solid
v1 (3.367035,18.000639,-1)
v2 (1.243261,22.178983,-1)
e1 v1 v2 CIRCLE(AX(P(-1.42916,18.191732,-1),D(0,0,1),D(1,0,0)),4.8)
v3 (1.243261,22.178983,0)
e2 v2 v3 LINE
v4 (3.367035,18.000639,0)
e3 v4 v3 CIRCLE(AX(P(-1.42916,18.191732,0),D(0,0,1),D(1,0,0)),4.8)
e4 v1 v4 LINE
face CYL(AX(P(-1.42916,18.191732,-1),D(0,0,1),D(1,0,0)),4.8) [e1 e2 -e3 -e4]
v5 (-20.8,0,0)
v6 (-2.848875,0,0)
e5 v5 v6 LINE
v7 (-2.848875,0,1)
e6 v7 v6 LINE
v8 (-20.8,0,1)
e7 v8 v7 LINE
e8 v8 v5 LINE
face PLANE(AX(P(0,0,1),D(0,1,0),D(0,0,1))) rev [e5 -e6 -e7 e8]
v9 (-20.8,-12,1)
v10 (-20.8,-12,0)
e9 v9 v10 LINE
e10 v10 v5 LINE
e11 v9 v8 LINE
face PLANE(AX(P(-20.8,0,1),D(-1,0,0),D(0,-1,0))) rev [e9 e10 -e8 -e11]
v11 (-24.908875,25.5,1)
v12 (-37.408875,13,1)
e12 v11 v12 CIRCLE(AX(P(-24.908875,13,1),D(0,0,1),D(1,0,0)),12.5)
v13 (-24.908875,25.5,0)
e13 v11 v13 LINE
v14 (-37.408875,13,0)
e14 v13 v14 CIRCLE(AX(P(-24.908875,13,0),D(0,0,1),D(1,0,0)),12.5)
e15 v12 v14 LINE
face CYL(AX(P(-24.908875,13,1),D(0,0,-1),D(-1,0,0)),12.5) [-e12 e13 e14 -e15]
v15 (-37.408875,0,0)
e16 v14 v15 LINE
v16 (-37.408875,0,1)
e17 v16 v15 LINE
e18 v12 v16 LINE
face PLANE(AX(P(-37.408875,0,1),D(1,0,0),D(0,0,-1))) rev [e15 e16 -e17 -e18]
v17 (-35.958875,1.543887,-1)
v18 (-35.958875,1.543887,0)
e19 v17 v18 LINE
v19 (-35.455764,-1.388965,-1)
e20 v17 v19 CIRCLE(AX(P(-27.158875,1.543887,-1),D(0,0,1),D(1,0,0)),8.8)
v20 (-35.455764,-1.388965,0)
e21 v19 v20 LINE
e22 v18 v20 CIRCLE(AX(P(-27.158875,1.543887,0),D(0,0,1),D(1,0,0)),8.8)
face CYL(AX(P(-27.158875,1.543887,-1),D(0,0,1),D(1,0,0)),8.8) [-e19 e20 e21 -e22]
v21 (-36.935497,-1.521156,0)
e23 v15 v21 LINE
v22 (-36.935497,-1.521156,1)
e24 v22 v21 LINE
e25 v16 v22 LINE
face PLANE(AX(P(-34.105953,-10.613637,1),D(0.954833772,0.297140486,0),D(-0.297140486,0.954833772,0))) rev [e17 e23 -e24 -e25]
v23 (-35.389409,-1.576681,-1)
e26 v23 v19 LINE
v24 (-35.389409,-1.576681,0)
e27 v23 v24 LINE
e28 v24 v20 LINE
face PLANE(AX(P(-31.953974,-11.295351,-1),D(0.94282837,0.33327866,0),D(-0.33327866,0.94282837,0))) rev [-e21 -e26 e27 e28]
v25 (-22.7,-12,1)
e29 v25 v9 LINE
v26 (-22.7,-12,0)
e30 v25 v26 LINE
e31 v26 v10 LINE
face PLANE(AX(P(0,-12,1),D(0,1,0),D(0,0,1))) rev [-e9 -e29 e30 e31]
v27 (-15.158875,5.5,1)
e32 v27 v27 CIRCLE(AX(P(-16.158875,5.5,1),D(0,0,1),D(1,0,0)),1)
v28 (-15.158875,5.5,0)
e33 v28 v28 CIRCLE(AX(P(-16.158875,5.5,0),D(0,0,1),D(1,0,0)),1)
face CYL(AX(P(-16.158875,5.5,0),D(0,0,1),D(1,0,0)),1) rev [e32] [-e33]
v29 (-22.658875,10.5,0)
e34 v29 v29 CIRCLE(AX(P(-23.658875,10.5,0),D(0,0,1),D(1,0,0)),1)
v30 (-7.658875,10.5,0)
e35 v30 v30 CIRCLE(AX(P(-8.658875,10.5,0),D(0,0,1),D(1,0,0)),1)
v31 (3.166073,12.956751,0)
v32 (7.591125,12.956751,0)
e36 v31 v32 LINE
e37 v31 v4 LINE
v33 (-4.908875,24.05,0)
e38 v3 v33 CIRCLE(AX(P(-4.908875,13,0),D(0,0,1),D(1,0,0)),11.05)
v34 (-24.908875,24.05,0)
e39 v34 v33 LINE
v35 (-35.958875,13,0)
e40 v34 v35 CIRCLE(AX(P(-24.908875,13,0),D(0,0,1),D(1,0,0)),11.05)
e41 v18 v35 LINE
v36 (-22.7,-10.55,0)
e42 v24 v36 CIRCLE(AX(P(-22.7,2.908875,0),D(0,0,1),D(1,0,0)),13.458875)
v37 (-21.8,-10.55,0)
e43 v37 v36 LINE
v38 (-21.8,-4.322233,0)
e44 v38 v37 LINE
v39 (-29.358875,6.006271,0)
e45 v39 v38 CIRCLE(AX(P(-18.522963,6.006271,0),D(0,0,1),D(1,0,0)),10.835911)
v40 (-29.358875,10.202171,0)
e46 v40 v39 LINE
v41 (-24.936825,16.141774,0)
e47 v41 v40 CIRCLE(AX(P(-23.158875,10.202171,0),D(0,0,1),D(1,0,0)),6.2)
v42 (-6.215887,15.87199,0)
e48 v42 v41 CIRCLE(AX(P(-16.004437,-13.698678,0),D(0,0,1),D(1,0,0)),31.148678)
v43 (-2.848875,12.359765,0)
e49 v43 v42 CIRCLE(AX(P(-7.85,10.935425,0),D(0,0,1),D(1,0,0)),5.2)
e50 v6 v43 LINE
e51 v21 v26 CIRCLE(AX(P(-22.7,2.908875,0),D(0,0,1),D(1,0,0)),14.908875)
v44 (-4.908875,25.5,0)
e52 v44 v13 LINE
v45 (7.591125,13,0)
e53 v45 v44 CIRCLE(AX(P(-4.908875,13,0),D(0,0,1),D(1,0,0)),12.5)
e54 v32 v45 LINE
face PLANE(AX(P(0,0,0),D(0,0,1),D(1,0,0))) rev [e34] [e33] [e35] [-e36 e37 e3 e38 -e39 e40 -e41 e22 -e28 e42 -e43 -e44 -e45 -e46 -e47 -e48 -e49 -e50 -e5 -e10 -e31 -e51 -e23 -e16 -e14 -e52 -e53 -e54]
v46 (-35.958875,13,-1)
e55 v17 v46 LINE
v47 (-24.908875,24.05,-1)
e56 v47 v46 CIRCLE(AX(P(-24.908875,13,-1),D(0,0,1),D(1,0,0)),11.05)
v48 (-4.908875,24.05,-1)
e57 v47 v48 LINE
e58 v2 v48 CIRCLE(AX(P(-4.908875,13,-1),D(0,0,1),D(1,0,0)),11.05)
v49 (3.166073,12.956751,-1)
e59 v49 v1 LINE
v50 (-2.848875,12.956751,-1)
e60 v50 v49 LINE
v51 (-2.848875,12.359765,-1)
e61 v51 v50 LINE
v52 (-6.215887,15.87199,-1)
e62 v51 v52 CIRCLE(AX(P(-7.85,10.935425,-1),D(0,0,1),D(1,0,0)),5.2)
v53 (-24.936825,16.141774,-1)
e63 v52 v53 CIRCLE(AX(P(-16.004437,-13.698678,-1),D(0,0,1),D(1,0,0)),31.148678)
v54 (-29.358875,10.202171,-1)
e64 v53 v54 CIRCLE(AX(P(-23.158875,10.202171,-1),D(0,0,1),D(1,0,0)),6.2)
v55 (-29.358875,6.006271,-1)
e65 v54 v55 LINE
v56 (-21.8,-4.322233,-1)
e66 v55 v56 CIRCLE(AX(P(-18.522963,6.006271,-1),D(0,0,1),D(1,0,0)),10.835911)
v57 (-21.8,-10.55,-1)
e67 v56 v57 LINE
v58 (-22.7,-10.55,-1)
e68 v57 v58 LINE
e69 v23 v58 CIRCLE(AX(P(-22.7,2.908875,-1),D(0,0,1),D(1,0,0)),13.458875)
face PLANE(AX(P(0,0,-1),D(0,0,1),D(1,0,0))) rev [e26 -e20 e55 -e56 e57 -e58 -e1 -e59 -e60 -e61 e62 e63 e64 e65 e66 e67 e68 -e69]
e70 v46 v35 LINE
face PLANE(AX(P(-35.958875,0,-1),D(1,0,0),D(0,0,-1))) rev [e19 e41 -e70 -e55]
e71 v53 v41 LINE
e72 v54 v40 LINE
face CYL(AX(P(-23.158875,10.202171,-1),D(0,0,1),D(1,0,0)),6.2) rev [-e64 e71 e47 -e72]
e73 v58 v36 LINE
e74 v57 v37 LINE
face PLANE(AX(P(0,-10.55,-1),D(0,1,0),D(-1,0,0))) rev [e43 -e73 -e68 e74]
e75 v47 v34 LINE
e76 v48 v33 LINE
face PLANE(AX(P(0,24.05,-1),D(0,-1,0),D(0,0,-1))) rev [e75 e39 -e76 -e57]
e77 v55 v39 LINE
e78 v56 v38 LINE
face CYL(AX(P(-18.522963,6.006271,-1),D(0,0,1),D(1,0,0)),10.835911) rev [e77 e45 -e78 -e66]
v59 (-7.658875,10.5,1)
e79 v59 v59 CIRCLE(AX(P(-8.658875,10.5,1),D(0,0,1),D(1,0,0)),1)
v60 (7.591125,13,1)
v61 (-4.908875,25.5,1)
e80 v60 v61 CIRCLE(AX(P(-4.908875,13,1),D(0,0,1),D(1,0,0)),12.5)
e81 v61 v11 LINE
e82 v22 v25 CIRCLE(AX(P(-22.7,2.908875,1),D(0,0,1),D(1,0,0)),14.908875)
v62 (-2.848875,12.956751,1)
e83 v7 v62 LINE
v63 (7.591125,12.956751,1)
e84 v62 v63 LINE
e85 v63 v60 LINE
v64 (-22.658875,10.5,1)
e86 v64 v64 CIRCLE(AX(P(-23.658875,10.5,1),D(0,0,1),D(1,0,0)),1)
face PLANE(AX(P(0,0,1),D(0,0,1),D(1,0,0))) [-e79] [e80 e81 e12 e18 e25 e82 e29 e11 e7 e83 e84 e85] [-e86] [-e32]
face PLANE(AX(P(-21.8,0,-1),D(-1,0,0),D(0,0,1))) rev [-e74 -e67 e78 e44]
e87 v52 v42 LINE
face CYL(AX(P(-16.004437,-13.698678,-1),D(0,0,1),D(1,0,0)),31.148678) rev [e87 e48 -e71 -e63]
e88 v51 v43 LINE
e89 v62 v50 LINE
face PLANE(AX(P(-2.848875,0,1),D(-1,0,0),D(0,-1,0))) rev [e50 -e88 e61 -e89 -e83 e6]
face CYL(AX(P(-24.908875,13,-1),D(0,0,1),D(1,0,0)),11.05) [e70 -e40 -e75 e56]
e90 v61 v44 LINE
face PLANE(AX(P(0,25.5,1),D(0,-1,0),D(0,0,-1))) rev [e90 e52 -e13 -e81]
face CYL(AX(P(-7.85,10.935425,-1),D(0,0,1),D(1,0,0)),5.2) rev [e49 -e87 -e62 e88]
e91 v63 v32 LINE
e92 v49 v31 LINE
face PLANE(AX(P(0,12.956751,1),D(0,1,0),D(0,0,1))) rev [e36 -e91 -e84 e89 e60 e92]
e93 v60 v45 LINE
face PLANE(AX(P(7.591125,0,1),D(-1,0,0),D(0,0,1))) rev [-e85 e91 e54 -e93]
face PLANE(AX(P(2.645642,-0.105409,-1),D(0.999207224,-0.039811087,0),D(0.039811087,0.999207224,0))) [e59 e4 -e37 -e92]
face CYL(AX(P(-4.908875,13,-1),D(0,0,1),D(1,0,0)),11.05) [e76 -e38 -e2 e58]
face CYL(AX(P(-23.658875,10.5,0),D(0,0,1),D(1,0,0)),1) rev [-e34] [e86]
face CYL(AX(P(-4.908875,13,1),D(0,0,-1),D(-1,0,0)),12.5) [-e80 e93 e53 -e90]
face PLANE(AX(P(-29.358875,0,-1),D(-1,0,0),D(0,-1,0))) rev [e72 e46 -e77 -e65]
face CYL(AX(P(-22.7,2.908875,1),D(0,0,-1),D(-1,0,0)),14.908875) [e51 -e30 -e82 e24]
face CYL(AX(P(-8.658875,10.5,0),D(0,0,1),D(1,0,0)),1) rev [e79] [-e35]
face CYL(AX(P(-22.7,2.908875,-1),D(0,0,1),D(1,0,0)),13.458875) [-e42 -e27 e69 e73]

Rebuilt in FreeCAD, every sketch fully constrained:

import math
import FreeCAD as App
import Part
import Sketcher

V = App.Vector

doc = App.newDocument("Part")
body = doc.addObject("PartDesign::Body", "Body")

# Sketch on XY plane
sketch1 = body.newObject("Sketcher::SketchObject", "Sketch")
sketch1.AttachmentSupport = (doc.getObject("XY_Plane"), [""])
sketch1.MapMode = "FlatFace"
sketch1.addGeometry(Part.LineSegment(V(-37.408875, 0, 0), V(-36.935497, -1.521156, 0)), False)
sketch1.addGeometry(Part.ArcOfCircle(Part.Circle(V(-22.7, 2.908875, 0), V(0, 0, 1), 14.908875), math.radians(-162.714065), math.radians(-90)), False)
sketch1.addGeometry(Part.LineSegment(V(-22.7, -12, 0), V(-20.8, -12, 0)), False)
sketch1.addGeometry(Part.LineSegment(V(-20.8, -12, 0), V(-20.8, 0, 0)), False)
sketch1.addGeometry(Part.LineSegment(V(-20.8, 0, 0), V(-2.848875, 0, 0)), False)
sketch1.addGeometry(Part.LineSegment(V(-2.848875, 0, 0), V(-2.848875, 12.956751, 0)), False)
sketch1.addGeometry(Part.LineSegment(V(-2.848875, 12.956751, 0), V(7.591125, 12.956751, 0)), False)
sketch1.addGeometry(Part.LineSegment(V(7.591125, 12.956751, 0), V(7.591125, 13, 0)), False)
sketch1.addGeometry(Part.ArcOfCircle(Part.Circle(V(-4.908875, 13, 0), V(0, 0, 1), 12.5), math.radians(0), math.radians(90)), False)
sketch1.addGeometry(Part.LineSegment(V(-4.908875, 25.5, 0), V(-24.908875, 25.5, 0)), False)
sketch1.addGeometry(Part.ArcOfCircle(Part.Circle(V(-24.908875, 13, 0), V(0, 0, 1), 12.5), math.radians(90), math.radians(180)), False)
sketch1.addGeometry(Part.LineSegment(V(-37.408875, 13, 0), V(-37.408875, 0, 0)), False)
sketch1.addConstraint(Sketcher.Constraint("Tangent", 0, 2, 1, 1))
sketch1.addConstraint(Sketcher.Constraint("Tangent", 1, 2, 2, 1))
sketch1.addConstraint(Sketcher.Constraint("Coincident", 2, 2, 3, 1))
sketch1.addConstraint(Sketcher.Constraint("Coincident", 3, 2, 4, 1))
sketch1.addConstraint(Sketcher.Constraint("Coincident", 4, 2, 5, 1))
sketch1.addConstraint(Sketcher.Constraint("Coincident", 5, 2, 6, 1))
sketch1.addConstraint(Sketcher.Constraint("Coincident", 6, 2, 7, 1))
sketch1.addConstraint(Sketcher.Constraint("Tangent", 7, 2, 8, 1))
sketch1.addConstraint(Sketcher.Constraint("Tangent", 8, 2, 9, 1))
sketch1.addConstraint(Sketcher.Constraint("Tangent", 9, 2, 10, 1))
sketch1.addConstraint(Sketcher.Constraint("Tangent", 10, 2, 11, 1))
sketch1.addConstraint(Sketcher.Constraint("Coincident", 11, 2, 0, 1))
sketch1.addConstraint(Sketcher.Constraint("Horizontal", 2))
sketch1.addConstraint(Sketcher.Constraint("Vertical", 3))
sketch1.addConstraint(Sketcher.Constraint("Horizontal", 4))
sketch1.addConstraint(Sketcher.Constraint("Vertical", 5))
sketch1.addConstraint(Sketcher.Constraint("Horizontal", 6))
sketch1.addConstraint(Sketcher.Constraint("Vertical", 7))
sketch1.addConstraint(Sketcher.Constraint("Horizontal", 9))
sketch1.addConstraint(Sketcher.Constraint("Vertical", 11))
sketch1.addConstraint(Sketcher.Constraint("Equal", 8, 10))
sketch1.addConstraint(Sketcher.Constraint("PointOnObject", 3, 2, -1))
sketch1.addConstraint(Sketcher.Constraint("PointOnObject", 11, 2, -1))
sketch1.addConstraint(Sketcher.Constraint("Radius", 8, 12.5))
sketch1.addConstraint(Sketcher.Constraint("DistanceX", 9, 2, 9, 1, 20.0))
sketch1.addConstraint(Sketcher.Constraint("DistanceY", 3, 1, 3, 2, 12.0))
sketch1.addConstraint(Sketcher.Constraint("DistanceY", 11, 2, 11, 1, 13.0))
sketch1.addConstraint(Sketcher.Constraint("DistanceX", 2, 1, 2, 2, 1.9))
sketch1.addConstraint(Sketcher.Constraint("DistanceX", 6, 1, 6, 2, 10.44))
sketch1.addConstraint(Sketcher.Constraint("DistanceX", 1, 3, -1, 1, 22.7))
sketch1.addConstraint(Sketcher.Constraint("Radius", 1, 14.908875))
sketch1.addConstraint(Sketcher.Constraint("DistanceY", 5, 1, 5, 2, 12.956751))
sketch1.addConstraint(Sketcher.Constraint("Distance", 0, 1.593111))
pad1 = body.newObject("PartDesign::Pad", "Pad")
pad1.Profile = sketch1
pad1.Length = 1

# Sketch on XY plane
sketch2 = body.newObject("Sketcher::SketchObject", "Sketch001")
sketch2.AttachmentSupport = (doc.getObject("XY_Plane"), [""])
sketch2.MapMode = "FlatFace"
sketch2.AttachmentOffset = App.Placement(V(0, 0, 1), App.Rotation())
sketch2.addGeometry(Part.Circle(V(-8.658875, 10.5, 0), V(0, 0, 1), 1), False)
sketch2.addGeometry(Part.Circle(V(-23.658875, 10.5, 0), V(0, 0, 1), 1), False)
sketch2.addGeometry(Part.Circle(V(-16.158875, 5.5, 0), V(0, 0, 1), 1), False)
sketch2.addConstraint(Sketcher.Constraint("Equal", 0, 1))
sketch2.addConstraint(Sketcher.Constraint("Equal", 1, 2))
sketch2.addConstraint(Sketcher.Constraint("Horizontal", 0, 3, 1, 3))
sketch2.addConstraint(Sketcher.Constraint("Diameter", 0, 2.0))
sketch2.addConstraint(Sketcher.Constraint("DistanceX", 1, 3, 0, 3, 15.0))
sketch2.addConstraint(Sketcher.Constraint("DistanceY", 2, 3, 0, 3, 5.0))
sketch2.addConstraint(Sketcher.Constraint("DistanceY", -1, 1, 0, 3, 10.5))
sketch2.addConstraint(Sketcher.Constraint("DistanceX", 2, 3, 0, 3, 7.5))
sketch2.addConstraint(Sketcher.Constraint("DistanceX", 0, 3, -1, 1, 8.658875))
pocket1 = body.newObject("PartDesign::Pocket", "Pocket")
pocket1.Profile = sketch2
pocket1.Type = "ThroughAll"

# Sketch on XY plane
sketch3 = body.newObject("Sketcher::SketchObject", "Sketch002")
sketch3.AttachmentSupport = (doc.getObject("XY_Plane"), [""])
sketch3.MapMode = "FlatFace"
sketch3.AttachmentOffset = App.Placement(V(0, 0, 1), App.Rotation())
sketch3.addGeometry(Part.LineSegment(V(-2.848875, 12.956751, 0), V(3.166073, 12.956751, 0)), False)
sketch3.addGeometry(Part.LineSegment(V(3.166073, 12.956751, 0), V(3.367035, 18.000639, 0)), False)
sketch3.addGeometry(Part.ArcOfCircle(Part.Circle(V(-1.42916, 18.191732, 0), V(0, 0, 1), 4.8), math.radians(-2.28161), math.radians(56.168364)), False)
sketch3.addGeometry(Part.ArcOfCircle(Part.Circle(V(-4.908874, 13, 0), V(0, 0, 1), 11.05), math.radians(56.168364), math.radians(90)), False)
sketch3.addGeometry(Part.LineSegment(V(-4.908875, 24.05, 0), V(-24.908875, 24.05, 0)), False)
sketch3.addGeometry(Part.ArcOfCircle(Part.Circle(V(-24.908875, 13, 0), V(0, 0, 1), 11.05), math.radians(90), math.radians(180)), False)
sketch3.addGeometry(Part.LineSegment(V(-35.958875, 13, 0), V(-35.958875, 1.543887, 0)), False)
sketch3.addGeometry(Part.ArcOfCircle(Part.Circle(V(-27.158874, 1.543887, 0), V(0, 0, 1), 8.8), math.radians(-180), math.radians(-160.532102)), False)
sketch3.addGeometry(Part.LineSegment(V(-35.455764, -1.388965, 0), V(-35.389409, -1.576681, 0)), False)
sketch3.addGeometry(Part.ArcOfCircle(Part.Circle(V(-22.7, 2.908875, 0), V(0, 0, 1), 13.458875), math.radians(-160.532102), math.radians(-90)), False)
sketch3.addGeometry(Part.LineSegment(V(-22.7, -10.55, 0), V(-21.8, -10.55, 0)), False)
sketch3.addGeometry(Part.LineSegment(V(-21.8, -10.55, 0), V(-21.8, -4.322233, 0)), False)
sketch3.addGeometry(Part.ArcOfCircle(Part.Circle(V(-18.522963, 6.006271, 0), V(0, 0, 1), 10.835911), math.radians(180), math.radians(252.396764)), False)
sketch3.addGeometry(Part.LineSegment(V(-29.358875, 6.006271, 0), V(-29.358875, 10.202171, 0)), False)
sketch3.addGeometry(Part.ArcOfCircle(Part.Circle(V(-23.158875, 10.202171, 0), V(0, 0, 1), 6.2), math.radians(106.664451), math.radians(180)), False)
sketch3.addGeometry(Part.ArcOfCircle(Part.Circle(V(-16.004437, -13.698678, 0), V(0, 0, 1), 31.148678), math.radians(71.684306), math.radians(106.664451)), False)
sketch3.addGeometry(Part.ArcOfCircle(Part.Circle(V(-7.85, 10.935425, 0), V(0, 0, 1), 5.2), math.radians(15.897157), math.radians(71.684306)), False)
sketch3.addGeometry(Part.LineSegment(V(-2.848875, 12.359765, 0), V(-2.848875, 12.956751, 0)), False)
sketch3.addConstraint(Sketcher.Constraint("Coincident", 0, 2, 1, 1))
sketch3.addConstraint(Sketcher.Constraint("Tangent", 1, 2, 2, 1))
sketch3.addConstraint(Sketcher.Constraint("Tangent", 2, 2, 3, 1))
sketch3.addConstraint(Sketcher.Constraint("Tangent", 3, 2, 4, 1))
sketch3.addConstraint(Sketcher.Constraint("Tangent", 4, 2, 5, 1))
sketch3.addConstraint(Sketcher.Constraint("Tangent", 5, 2, 6, 1))
sketch3.addConstraint(Sketcher.Constraint("Tangent", 6, 2, 7, 1))
sketch3.addConstraint(Sketcher.Constraint("Tangent", 7, 2, 8, 1))
sketch3.addConstraint(Sketcher.Constraint("Tangent", 8, 2, 9, 1))
sketch3.addConstraint(Sketcher.Constraint("Tangent", 9, 2, 10, 1))
sketch3.addConstraint(Sketcher.Constraint("Coincident", 10, 2, 11, 1))
sketch3.addConstraint(Sketcher.Constraint("Coincident", 11, 2, 12, 2))
sketch3.addConstraint(Sketcher.Constraint("Tangent", 12, 1, 13, 1))
sketch3.addConstraint(Sketcher.Constraint("Tangent", 13, 2, 14, 2))
sketch3.addConstraint(Sketcher.Constraint("Tangent", 14, 1, 15, 2))
sketch3.addConstraint(Sketcher.Constraint("Tangent", 15, 1, 16, 2))
sketch3.addConstraint(Sketcher.Constraint("Coincident", 16, 1, 17, 1))
sketch3.addConstraint(Sketcher.Constraint("Coincident", 17, 2, 0, 1))
sketch3.addConstraint(Sketcher.Constraint("Horizontal", 0))
sketch3.addConstraint(Sketcher.Constraint("Horizontal", 4))
sketch3.addConstraint(Sketcher.Constraint("Vertical", 6))
sketch3.addConstraint(Sketcher.Constraint("Horizontal", 10))
sketch3.addConstraint(Sketcher.Constraint("Vertical", 11))
sketch3.addConstraint(Sketcher.Constraint("Vertical", 13))
sketch3.addConstraint(Sketcher.Constraint("Vertical", 17))
sketch3.addConstraint(Sketcher.Constraint("Equal", 3, 5))
sketch3.addConstraint(Sketcher.Constraint("Radius", 2, 4.8))
sketch3.addConstraint(Sketcher.Constraint("Radius", 7, 8.8))
sketch3.addConstraint(Sketcher.Constraint("Radius", 14, 6.2))
sketch3.addConstraint(Sketcher.Constraint("Radius", 16, 5.2))
sketch3.addConstraint(Sketcher.Constraint("DistanceX", 4, 2, 4, 1, 20.0))
sketch3.addConstraint(Sketcher.Constraint("Radius", 3, 11.05))
sketch3.addConstraint(Sketcher.Constraint("DistanceX", 10, 1, 10, 2, 0.9))
sketch3.addConstraint(Sketcher.Constraint("DistanceY", -1, 1, 3, 3, 13.0))
sketch3.addConstraint(Sketcher.Constraint("DistanceX", 7, 3, 14, 3, 4.0))
sketch3.addConstraint(Sketcher.Constraint("DistanceX", 9, 3, -1, 1, 22.7))
sketch3.addConstraint(Sketcher.Constraint("DistanceX", 16, 3, -1, 1, 7.85))
sketch3.addConstraint(Sketcher.Constraint("DistanceY", 9, 2, -1, 1, 10.55))
sketch3.addConstraint(Sketcher.Constraint("Radius", 12, 10.835911))
sketch3.addConstraint(Sketcher.Constraint("Radius", 15, 31.148678))
sketch3.addConstraint(Sketcher.Constraint("DistanceX", 12, 3, 1, 2, 21.889998))
sketch3.addConstraint(Sketcher.Constraint("DistanceX", 3, 3, 16, 1, 2.06))
sketch3.addConstraint(Sketcher.Constraint("DistanceY", 13, 1, 13, 2, 4.195899))
sketch3.addConstraint(Sketcher.Constraint("Radius", 9, 13.458875))
sketch3.addConstraint(Sketcher.Constraint("Distance", 8, 0.199099))
sketch3.addConstraint(Sketcher.Constraint("Distance", 1, 5.04789))
sketch3.addConstraint(Sketcher.Constraint("DistanceX", 0, 1, 0, 2, 6.014947))
sketch3.addConstraint(Sketcher.Constraint("DistanceY", 6, 2, 6, 1, 11.456113))
sketch3.addConstraint(Sketcher.Constraint("DistanceY", 11, 1, 11, 2, 6.227767))
sketch3.addConstraint(Sketcher.Constraint("DistanceY", 17, 1, 17, 2, 0.596986))
pad2 = body.newObject("PartDesign::Pad", "Pad001")
pad2.Profile = sketch3
pad2.Length = 2
pad2.Reversed = True

doc.recompute()
